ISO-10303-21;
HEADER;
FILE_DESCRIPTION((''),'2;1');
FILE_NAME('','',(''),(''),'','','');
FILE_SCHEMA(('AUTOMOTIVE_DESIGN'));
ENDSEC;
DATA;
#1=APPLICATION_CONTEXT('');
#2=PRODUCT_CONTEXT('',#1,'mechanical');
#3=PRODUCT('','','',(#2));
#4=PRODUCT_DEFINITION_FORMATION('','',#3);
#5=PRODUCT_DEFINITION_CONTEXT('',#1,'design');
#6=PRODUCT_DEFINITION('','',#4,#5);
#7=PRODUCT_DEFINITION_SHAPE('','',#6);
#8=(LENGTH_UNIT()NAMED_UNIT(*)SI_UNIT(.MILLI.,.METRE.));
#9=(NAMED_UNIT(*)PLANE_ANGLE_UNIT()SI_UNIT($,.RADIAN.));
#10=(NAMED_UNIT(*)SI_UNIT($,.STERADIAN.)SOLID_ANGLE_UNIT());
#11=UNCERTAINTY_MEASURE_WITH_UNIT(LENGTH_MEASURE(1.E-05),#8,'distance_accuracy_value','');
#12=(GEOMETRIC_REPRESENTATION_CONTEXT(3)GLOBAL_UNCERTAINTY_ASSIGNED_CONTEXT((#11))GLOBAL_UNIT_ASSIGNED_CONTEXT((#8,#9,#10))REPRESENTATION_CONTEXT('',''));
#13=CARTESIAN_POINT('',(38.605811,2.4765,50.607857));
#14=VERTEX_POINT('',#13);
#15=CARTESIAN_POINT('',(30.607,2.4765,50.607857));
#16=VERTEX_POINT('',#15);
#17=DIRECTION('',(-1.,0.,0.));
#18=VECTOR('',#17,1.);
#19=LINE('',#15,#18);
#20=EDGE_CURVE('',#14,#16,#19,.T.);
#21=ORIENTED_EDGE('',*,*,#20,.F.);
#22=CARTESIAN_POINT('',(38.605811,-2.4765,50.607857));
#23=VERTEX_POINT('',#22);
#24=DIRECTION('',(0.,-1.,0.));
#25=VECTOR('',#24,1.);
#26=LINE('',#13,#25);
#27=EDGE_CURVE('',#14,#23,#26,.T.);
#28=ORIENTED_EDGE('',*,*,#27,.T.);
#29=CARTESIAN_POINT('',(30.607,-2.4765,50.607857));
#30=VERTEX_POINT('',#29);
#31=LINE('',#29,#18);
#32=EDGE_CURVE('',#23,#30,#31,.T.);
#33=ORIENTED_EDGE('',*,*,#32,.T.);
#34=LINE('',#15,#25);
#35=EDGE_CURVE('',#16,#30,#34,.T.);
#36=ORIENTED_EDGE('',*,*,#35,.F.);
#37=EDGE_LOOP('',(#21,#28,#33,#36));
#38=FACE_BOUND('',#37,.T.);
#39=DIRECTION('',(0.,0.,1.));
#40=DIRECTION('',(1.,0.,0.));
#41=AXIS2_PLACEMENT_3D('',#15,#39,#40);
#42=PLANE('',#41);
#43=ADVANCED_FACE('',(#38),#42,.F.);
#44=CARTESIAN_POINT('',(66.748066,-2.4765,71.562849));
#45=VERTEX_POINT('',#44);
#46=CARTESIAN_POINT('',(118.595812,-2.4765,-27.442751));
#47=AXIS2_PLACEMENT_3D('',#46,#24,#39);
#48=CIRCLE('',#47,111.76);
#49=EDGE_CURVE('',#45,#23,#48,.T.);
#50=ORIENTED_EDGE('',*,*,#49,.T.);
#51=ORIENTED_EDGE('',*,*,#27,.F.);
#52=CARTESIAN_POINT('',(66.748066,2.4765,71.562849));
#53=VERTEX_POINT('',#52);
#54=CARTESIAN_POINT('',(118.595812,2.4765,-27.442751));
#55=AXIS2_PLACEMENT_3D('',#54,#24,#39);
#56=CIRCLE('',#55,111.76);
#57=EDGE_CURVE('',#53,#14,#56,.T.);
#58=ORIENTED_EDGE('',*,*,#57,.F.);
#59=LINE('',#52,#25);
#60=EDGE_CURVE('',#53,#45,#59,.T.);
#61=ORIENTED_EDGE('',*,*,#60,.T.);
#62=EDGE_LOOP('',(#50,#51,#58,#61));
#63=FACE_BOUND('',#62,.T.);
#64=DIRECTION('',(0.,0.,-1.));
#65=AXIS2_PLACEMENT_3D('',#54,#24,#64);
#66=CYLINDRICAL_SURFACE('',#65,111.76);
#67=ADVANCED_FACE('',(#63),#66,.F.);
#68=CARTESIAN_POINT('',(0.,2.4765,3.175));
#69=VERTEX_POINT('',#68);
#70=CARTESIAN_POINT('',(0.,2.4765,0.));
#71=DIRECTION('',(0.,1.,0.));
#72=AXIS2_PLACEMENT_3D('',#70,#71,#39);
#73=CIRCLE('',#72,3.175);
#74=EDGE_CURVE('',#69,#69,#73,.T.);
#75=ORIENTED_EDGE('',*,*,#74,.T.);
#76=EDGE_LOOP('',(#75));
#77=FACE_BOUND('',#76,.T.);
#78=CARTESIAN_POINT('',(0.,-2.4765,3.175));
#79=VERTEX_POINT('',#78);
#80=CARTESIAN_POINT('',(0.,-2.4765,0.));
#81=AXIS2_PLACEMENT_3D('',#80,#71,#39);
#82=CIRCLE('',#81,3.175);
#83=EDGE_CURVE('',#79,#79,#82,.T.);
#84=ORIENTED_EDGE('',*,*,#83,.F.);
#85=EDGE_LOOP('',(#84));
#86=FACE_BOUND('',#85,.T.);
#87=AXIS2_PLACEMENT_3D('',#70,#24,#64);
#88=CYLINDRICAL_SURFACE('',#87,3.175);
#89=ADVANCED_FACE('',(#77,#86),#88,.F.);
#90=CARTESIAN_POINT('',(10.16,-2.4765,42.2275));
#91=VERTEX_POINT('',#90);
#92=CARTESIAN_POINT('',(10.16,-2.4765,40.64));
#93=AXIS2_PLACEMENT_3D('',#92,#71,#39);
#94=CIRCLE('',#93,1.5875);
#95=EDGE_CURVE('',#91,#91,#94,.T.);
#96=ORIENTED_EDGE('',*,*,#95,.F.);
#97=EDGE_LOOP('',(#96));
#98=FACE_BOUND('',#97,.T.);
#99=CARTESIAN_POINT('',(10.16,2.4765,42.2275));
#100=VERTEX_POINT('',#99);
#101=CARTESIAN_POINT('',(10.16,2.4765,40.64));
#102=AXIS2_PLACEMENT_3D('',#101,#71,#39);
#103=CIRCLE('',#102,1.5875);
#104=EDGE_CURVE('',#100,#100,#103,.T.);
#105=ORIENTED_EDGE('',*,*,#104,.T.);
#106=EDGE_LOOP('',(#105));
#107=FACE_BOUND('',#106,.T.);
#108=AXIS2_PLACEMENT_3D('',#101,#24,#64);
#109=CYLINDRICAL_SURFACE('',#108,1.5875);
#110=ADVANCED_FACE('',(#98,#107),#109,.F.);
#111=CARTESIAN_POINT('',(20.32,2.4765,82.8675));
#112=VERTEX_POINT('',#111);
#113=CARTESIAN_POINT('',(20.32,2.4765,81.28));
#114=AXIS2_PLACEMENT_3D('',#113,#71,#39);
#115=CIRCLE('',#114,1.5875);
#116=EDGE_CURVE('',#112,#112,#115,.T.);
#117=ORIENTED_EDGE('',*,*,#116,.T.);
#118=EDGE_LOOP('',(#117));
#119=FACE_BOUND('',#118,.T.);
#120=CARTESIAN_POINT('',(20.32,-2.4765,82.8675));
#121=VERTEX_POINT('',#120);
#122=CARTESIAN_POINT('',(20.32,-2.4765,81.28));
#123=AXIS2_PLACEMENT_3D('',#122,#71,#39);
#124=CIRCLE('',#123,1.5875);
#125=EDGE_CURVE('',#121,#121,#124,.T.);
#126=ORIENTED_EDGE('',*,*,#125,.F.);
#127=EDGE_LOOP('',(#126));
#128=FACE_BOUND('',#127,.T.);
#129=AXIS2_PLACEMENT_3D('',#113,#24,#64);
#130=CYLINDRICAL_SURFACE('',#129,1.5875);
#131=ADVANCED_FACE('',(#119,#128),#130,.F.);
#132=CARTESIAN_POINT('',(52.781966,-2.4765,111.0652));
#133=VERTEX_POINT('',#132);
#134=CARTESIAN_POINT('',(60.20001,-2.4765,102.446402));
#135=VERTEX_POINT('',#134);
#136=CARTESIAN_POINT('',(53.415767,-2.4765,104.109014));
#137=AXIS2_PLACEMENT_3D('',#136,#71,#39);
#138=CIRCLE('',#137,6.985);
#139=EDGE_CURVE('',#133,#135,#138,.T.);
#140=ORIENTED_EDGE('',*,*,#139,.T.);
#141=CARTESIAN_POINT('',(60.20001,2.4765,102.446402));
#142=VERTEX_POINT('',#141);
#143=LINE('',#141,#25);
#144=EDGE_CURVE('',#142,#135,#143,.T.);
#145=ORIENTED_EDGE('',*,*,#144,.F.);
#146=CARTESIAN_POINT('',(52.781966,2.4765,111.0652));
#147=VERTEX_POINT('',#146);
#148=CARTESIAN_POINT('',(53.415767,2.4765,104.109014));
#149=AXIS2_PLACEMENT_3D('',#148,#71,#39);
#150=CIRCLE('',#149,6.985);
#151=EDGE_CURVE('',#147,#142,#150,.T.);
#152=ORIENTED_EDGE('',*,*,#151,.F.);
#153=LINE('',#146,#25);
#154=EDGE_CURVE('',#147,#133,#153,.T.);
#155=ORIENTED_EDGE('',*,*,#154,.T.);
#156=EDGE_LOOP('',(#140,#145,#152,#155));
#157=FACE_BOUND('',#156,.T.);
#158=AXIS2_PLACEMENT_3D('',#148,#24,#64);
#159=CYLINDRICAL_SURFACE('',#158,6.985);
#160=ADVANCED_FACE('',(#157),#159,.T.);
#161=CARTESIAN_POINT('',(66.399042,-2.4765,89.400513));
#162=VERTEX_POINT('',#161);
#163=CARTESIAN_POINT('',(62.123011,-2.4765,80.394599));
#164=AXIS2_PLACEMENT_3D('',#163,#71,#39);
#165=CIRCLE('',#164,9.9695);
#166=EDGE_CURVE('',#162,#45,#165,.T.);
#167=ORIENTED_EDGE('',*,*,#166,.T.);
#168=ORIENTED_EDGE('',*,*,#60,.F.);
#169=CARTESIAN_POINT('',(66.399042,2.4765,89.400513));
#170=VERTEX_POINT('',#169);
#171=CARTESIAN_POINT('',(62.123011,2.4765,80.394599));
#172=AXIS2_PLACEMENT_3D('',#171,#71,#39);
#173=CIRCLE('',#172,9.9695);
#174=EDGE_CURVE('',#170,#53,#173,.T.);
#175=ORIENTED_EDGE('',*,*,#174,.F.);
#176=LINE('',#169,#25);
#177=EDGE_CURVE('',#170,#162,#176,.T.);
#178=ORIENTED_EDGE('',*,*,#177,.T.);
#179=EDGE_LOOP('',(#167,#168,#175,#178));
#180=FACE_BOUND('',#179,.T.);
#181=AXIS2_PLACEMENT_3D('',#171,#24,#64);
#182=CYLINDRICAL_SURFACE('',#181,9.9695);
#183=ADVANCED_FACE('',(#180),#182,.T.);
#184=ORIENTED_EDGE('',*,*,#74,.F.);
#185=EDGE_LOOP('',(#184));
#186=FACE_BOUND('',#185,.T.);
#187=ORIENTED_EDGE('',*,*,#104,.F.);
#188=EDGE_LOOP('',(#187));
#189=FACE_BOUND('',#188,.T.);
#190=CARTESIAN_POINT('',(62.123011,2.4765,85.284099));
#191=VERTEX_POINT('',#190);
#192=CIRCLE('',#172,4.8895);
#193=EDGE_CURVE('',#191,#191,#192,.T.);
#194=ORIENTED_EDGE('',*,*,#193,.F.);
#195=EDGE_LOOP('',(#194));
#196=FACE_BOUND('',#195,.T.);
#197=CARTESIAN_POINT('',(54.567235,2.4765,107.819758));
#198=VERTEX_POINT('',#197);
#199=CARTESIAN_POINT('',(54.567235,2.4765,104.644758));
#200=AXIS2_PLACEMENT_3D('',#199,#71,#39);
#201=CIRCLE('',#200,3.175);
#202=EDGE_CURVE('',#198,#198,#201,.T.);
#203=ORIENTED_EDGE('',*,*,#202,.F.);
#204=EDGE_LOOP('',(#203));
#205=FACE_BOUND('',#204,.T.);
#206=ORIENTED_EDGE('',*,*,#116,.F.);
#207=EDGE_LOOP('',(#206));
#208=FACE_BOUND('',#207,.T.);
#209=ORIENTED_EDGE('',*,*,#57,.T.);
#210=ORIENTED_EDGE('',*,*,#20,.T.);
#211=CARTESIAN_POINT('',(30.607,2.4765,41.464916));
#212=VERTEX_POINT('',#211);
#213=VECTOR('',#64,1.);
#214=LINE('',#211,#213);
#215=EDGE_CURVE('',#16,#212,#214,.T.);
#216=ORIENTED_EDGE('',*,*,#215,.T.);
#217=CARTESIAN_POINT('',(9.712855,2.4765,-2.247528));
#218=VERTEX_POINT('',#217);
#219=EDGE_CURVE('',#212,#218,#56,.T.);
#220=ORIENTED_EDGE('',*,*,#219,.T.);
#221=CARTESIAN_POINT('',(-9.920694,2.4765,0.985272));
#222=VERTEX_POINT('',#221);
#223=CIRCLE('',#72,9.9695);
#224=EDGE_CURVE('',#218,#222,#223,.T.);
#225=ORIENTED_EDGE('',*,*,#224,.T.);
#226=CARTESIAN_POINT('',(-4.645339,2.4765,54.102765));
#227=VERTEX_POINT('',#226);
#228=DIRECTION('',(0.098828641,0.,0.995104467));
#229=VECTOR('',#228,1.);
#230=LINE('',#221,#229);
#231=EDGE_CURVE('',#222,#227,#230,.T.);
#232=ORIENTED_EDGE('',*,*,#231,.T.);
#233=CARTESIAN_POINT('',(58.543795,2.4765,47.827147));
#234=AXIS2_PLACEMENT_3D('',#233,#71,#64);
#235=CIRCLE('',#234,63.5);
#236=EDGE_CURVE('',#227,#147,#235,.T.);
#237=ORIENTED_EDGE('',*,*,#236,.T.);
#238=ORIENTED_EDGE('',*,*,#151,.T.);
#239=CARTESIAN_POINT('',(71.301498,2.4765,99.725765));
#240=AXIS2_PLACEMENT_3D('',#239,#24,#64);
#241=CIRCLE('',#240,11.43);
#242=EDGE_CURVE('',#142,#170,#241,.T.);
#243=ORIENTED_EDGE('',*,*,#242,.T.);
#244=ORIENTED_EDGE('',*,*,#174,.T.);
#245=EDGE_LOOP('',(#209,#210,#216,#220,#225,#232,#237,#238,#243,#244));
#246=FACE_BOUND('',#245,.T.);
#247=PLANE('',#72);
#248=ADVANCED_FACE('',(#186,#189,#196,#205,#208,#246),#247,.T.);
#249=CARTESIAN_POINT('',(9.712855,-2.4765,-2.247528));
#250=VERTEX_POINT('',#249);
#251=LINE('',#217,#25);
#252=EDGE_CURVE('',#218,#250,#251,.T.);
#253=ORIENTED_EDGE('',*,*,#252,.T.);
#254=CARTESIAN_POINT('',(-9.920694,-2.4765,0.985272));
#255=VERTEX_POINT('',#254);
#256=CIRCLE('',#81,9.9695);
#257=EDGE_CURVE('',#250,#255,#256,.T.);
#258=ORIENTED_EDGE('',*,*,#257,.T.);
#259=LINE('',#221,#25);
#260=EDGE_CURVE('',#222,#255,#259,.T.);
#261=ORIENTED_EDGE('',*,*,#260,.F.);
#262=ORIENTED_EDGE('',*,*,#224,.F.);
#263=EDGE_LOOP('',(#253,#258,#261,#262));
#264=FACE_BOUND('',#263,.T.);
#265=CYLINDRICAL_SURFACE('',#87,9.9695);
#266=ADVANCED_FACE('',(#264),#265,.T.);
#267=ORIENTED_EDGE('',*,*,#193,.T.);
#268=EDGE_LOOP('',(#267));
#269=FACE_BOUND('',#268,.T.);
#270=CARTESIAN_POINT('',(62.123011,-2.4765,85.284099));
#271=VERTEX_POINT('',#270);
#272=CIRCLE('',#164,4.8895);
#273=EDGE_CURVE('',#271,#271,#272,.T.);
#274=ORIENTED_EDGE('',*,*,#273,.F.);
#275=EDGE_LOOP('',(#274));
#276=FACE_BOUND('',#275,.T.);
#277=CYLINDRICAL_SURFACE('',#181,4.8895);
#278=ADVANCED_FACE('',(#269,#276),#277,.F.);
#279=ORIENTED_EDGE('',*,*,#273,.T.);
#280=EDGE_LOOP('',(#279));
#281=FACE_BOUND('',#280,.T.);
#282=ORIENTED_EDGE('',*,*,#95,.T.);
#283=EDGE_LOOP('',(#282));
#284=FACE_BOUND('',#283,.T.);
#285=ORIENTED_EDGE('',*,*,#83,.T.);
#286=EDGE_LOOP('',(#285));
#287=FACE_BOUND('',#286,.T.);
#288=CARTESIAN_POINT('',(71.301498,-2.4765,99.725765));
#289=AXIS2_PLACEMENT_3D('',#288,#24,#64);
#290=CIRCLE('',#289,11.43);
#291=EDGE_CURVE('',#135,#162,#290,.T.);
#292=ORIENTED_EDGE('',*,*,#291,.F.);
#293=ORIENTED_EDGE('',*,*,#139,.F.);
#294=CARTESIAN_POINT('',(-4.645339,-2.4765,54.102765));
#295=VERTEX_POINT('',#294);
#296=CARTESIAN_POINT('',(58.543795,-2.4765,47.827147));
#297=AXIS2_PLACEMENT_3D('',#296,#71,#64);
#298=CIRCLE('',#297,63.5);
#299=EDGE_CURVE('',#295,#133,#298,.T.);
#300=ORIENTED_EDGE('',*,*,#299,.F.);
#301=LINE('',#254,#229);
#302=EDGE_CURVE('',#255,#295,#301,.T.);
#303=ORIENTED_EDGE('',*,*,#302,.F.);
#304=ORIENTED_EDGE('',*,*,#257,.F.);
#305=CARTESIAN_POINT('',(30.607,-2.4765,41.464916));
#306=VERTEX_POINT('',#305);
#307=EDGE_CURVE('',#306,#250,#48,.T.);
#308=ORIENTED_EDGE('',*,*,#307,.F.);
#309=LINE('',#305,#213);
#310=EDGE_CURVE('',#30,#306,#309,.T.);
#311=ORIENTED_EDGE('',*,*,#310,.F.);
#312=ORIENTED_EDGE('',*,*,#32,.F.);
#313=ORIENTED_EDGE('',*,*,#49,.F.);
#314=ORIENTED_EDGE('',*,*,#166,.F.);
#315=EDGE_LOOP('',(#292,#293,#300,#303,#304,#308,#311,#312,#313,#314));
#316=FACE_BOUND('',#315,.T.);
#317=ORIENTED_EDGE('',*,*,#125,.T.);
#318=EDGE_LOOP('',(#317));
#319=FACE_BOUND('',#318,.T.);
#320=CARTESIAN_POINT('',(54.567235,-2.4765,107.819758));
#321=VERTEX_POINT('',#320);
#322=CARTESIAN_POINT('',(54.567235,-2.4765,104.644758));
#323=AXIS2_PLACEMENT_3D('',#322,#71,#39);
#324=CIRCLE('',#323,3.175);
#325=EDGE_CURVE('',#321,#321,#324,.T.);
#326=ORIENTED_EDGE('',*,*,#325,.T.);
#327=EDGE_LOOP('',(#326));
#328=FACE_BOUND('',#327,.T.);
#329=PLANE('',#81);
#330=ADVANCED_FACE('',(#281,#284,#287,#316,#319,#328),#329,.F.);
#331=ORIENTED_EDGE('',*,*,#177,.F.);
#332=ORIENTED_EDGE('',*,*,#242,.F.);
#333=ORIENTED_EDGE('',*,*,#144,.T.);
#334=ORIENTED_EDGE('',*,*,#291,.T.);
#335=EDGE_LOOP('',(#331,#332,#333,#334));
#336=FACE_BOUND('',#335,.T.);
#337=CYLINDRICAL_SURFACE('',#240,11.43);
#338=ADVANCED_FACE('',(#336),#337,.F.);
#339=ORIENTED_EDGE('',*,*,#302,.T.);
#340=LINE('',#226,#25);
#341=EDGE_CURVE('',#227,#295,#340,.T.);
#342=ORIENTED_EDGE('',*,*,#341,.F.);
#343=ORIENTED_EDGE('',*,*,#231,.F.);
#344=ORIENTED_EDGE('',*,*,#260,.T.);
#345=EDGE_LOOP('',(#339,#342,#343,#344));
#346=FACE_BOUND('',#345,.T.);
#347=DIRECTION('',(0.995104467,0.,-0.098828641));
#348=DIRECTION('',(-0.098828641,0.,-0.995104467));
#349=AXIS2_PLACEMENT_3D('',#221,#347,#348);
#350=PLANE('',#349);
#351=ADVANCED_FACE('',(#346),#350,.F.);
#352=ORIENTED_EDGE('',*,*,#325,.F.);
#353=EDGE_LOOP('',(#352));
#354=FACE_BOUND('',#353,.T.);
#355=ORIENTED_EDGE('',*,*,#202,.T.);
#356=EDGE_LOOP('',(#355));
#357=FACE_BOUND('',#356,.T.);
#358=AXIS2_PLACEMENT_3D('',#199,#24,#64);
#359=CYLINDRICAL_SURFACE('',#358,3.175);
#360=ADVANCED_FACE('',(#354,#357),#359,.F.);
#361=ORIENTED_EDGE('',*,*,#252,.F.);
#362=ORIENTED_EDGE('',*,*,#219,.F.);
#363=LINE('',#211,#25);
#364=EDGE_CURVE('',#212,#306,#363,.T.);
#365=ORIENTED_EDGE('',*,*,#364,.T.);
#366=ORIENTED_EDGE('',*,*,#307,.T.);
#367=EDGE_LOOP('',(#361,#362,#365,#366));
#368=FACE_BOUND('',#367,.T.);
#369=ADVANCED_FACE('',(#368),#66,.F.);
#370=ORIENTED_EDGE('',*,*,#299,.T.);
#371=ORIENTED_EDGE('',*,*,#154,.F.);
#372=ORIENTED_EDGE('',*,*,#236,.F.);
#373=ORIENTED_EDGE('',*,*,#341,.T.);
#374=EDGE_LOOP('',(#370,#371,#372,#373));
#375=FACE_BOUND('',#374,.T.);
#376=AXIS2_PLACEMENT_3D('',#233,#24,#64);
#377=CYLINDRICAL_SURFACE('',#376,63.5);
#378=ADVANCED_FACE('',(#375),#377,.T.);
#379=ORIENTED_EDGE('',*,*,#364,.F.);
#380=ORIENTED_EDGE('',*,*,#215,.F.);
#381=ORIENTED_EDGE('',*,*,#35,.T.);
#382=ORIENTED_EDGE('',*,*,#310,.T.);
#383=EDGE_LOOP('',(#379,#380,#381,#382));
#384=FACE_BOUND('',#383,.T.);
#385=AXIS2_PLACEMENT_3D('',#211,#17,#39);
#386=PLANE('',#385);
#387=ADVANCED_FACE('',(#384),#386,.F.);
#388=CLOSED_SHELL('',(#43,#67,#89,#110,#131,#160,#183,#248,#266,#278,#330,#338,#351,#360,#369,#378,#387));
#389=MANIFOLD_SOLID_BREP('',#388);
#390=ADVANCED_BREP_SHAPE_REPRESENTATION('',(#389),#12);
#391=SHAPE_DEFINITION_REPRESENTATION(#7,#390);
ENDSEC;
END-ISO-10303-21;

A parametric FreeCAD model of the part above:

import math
import FreeCAD as App
import Part
import Sketcher
from FreeCAD import Vector
Q = App.Units.Quantity

doc = App.newDocument("Part")
params = doc.addObject("Spreadsheet::Sheet", "Params")
for row, (alias, value) in enumerate([
    ("sketch1_radius", "2.5 in"),
    ("sketch1_radius2", "4.4 in"),
    ("sketch1_diameter", "0.25 in"),
    ("sketch1_radius3", "0.45 in"),
    ("sketch1_diameter2", "0.125 in"),
    ("pad1_length", "0.195 in"),
], start=1):
    params.set(f"A{row}", alias)
    params.set(f"B{row}", "=" + value)
    params.setAlias(f"B{row}", alias)

body = doc.addObject("PartDesign::Body", "Body")

# Sketch on XZ plane
sketch1 = doc.addObject("Sketcher::SketchObject", "Sketch")
body.addObject(sketch1)
sketch1.AttachmentSupport = (doc.XZ_Plane, [""])
sketch1.MapMode = "FlatFace"
sketch1.addGeometry(Part.LineSegment(Vector(-9.9, 1, 0), Vector(-4.6, 54.1, 0)), False)
sketch1.addGeometry(Part.ArcOfCircle(Part.Circle(Vector(58.5, 47.8, 0), Vector(0, 0, 1), 63.5), math.radians(95), math.radians(174)), False)
sketch1.addGeometry(Part.ArcOfCircle(Part.Circle(Vector(53.4, 104.1, 0), Vector(0, 0, 1), 7), math.radians(-14), math.radians(95)), False)
sketch1.addGeometry(Part.ArcOfCircle(Part.Circle(Vector(71.3, 99.7, 0), Vector(0, 0, 1), 11.4), math.radians(166), math.radians(245)), False)
sketch1.addGeometry(Part.ArcOfCircle(Part.Circle(Vector(62.1, 80.4, 0), Vector(0, 0, 1), 10), math.radians(-62), math.radians(65)), False)
sketch1.addGeometry(Part.ArcOfCircle(Part.Circle(Vector(118.6, -27.4, 0), Vector(0, 0, 1), 111.8), math.radians(117.64), math.radians(135.7)), False)
sketch1.addGeometry(Part.LineSegment(Vector(38.6, 50.6, 0), Vector(30.6, 50.6, 0)), False)
sketch1.addGeometry(Part.LineSegment(Vector(30.6, 50.6, 0), Vector(30.6, 41.5, 0)), False)
sketch1.addGeometry(Part.ArcOfCircle(Part.Circle(Vector(118.6, -27.4, 0), Vector(0, 0, 1), 111.8), math.radians(142), math.radians(167)), False)
sketch1.addGeometry(Part.ArcOfCircle(Part.Circle(Vector(0, 0, 0), Vector(0, 0, 1), 10), math.radians(174), math.radians(347)), False)
sketch1.addGeometry(Part.Circle(Vector(20.3, 81.3, 0), Vector(0, 0, 1), 1.6), False)
sketch1.addGeometry(Part.Circle(Vector(54.6, 104.6, 0), Vector(0, 0, 1), 3.2), False)
sketch1.addGeometry(Part.Circle(Vector(62.1, 80.4, 0), Vector(0, 0, 1), 4.9), False)
sketch1.addGeometry(Part.Circle(Vector(10.2, 40.6, 0), Vector(0, 0, 1), 1.6), False)
sketch1.addGeometry(Part.Circle(Vector(0, 0, 0), Vector(0, 0, 1), 3.2), False)
sketch1.addConstraint(Sketcher.Constraint("Tangent", 0, 2, 1, 2))
sketch1.addConstraint(Sketcher.Constraint("Tangent", 1, 1, 2, 2))
sketch1.addConstraint(Sketcher.Constraint("Tangent", 2, 1, 3, 1))
sketch1.addConstraint(Sketcher.Constraint("Tangent", 3, 2, 4, 2))
sketch1.addConstraint(Sketcher.Constraint("Tangent", 4, 1, 5, 1))
sketch1.addConstraint(Sketcher.Constraint("Coincident", 5, 2, 6, 1))
sketch1.addConstraint(Sketcher.Constraint("Coincident", 6, 2, 7, 1))
sketch1.addConstraint(Sketcher.Constraint("Coincident", 7, 2, 8, 1))
sketch1.addConstraint(Sketcher.Constraint("Tangent", 8, 2, 9, 2))
sketch1.addConstraint(Sketcher.Constraint("Tangent", 9, 1, 0, 1))
sketch1.addConstraint(Sketcher.Constraint("Horizontal", 6))
sketch1.addConstraint(Sketcher.Constraint("Vertical", 7))
sketch1.addConstraint(Sketcher.Constraint("Coincident", 9, 3, -1, 1))
sketch1.addConstraint(Sketcher.Constraint("Coincident", 14, 3, -1, 1))
sketch1.addConstraint(Sketcher.Constraint("Coincident", 8, 3, 5, 3))
sketch1.addConstraint(Sketcher.Constraint("Coincident", 12, 3, 4, 3))
sketch1.addConstraint(Sketcher.Constraint("Equal", 5, 8))
sketch1.addConstraint(Sketcher.Constraint("Equal", 4, 9))
sketch1.addConstraint(Sketcher.Constraint("Equal", 10, 13))
sketch1.addConstraint(Sketcher.Constraint("Equal", 11, 14))
sketch1.addConstraint(Sketcher.Constraint("Radius", 1, Q("2.5 in")))
sketch1.addConstraint(Sketcher.Constraint("Radius", 5, Q("4.4 in")))
sketch1.addConstraint(Sketcher.Constraint("Diameter", 11, Q("0.25 in")))
sketch1.addConstraint(Sketcher.Constraint("Radius", 3, Q("0.45 in")))
sketch1.addConstraint(Sketcher.Constraint("Diameter", 10, Q("0.125 in")))
sketch1.addConstraint(Sketcher.Constraint("Diameter", 12, Q("0.385 in")))
sketch1.addConstraint(Sketcher.Constraint("Radius", 2, Q("0.275 in")))
sketch1.addConstraint(Sketcher.Constraint("DistanceX", -1, 1, 10, 3, Q("0.8 in")))
sketch1.addConstraint(Sketcher.Constraint("DistanceY", -1, 1, 10, 3, Q("3.2 in")))
sketch1.addConstraint(Sketcher.Constraint("DistanceX", -1, 1, 13, 3, Q("0.4 in")))
sketch1.addConstraint(Sketcher.Constraint("DistanceY", -1, 1, 13, 3, Q("1.6 in")))
sketch1.addConstraint(Sketcher.Constraint("Radius", 4, Q("0.3925 in")))
sketch1.addConstraint(Sketcher.Constraint("DistanceX", -1, 1, 6, 2, Q("1.205 in")))
sketch1.addConstraint(Sketcher.Constraint("DistanceX", 6, 2, 6, 1, Q("7.998811 mm")))
sketch1.addConstraint(Sketcher.Constraint("DistanceY", 7, 2, 7, 1, Q("9.14294 mm")))
sketch1.addConstraint(Sketcher.Constraint("DistanceY", -1, 1, 4, 3, Q("80.394599 mm")))
sketch1.addConstraint(Sketcher.Constraint("DistanceY", -1, 1, 1, 1, Q("111.0652 mm")))
sketch1.addConstraint(Sketcher.Constraint("DistanceX", 2, 1, 4, 3, Q("1.923001 mm")))
sketch1.addConstraint(Sketcher.Constraint("Distance", 0, Q("53.378811 mm")))
sketch1.addConstraint(Sketcher.Constraint("DistanceY", -1, 1, 11, 3, Q("104.644758 mm")))
sketch1.addConstraint(Sketcher.Constraint("DistanceX", 11, 3, 1, 3, Q("3.97656 mm")))
sketch1.setExpression("Constraints[20]", "Params.sketch1_radius")
sketch1.setExpression("Constraints[21]", "Params.sketch1_radius2")
sketch1.setExpression("Constraints[22]", "Params.sketch1_diameter")
sketch1.setExpression("Constraints[23]", "Params.sketch1_radius3")
sketch1.setExpression("Constraints[24]", "Params.sketch1_diameter2")
pad1 = doc.addObject("PartDesign::Pad", "Pad")
body.addObject(pad1)
pad1.Profile = sketch1
pad1.setExpression("Length", "Params.pad1_length")
pad1.Midplane = True

doc.recompute()
